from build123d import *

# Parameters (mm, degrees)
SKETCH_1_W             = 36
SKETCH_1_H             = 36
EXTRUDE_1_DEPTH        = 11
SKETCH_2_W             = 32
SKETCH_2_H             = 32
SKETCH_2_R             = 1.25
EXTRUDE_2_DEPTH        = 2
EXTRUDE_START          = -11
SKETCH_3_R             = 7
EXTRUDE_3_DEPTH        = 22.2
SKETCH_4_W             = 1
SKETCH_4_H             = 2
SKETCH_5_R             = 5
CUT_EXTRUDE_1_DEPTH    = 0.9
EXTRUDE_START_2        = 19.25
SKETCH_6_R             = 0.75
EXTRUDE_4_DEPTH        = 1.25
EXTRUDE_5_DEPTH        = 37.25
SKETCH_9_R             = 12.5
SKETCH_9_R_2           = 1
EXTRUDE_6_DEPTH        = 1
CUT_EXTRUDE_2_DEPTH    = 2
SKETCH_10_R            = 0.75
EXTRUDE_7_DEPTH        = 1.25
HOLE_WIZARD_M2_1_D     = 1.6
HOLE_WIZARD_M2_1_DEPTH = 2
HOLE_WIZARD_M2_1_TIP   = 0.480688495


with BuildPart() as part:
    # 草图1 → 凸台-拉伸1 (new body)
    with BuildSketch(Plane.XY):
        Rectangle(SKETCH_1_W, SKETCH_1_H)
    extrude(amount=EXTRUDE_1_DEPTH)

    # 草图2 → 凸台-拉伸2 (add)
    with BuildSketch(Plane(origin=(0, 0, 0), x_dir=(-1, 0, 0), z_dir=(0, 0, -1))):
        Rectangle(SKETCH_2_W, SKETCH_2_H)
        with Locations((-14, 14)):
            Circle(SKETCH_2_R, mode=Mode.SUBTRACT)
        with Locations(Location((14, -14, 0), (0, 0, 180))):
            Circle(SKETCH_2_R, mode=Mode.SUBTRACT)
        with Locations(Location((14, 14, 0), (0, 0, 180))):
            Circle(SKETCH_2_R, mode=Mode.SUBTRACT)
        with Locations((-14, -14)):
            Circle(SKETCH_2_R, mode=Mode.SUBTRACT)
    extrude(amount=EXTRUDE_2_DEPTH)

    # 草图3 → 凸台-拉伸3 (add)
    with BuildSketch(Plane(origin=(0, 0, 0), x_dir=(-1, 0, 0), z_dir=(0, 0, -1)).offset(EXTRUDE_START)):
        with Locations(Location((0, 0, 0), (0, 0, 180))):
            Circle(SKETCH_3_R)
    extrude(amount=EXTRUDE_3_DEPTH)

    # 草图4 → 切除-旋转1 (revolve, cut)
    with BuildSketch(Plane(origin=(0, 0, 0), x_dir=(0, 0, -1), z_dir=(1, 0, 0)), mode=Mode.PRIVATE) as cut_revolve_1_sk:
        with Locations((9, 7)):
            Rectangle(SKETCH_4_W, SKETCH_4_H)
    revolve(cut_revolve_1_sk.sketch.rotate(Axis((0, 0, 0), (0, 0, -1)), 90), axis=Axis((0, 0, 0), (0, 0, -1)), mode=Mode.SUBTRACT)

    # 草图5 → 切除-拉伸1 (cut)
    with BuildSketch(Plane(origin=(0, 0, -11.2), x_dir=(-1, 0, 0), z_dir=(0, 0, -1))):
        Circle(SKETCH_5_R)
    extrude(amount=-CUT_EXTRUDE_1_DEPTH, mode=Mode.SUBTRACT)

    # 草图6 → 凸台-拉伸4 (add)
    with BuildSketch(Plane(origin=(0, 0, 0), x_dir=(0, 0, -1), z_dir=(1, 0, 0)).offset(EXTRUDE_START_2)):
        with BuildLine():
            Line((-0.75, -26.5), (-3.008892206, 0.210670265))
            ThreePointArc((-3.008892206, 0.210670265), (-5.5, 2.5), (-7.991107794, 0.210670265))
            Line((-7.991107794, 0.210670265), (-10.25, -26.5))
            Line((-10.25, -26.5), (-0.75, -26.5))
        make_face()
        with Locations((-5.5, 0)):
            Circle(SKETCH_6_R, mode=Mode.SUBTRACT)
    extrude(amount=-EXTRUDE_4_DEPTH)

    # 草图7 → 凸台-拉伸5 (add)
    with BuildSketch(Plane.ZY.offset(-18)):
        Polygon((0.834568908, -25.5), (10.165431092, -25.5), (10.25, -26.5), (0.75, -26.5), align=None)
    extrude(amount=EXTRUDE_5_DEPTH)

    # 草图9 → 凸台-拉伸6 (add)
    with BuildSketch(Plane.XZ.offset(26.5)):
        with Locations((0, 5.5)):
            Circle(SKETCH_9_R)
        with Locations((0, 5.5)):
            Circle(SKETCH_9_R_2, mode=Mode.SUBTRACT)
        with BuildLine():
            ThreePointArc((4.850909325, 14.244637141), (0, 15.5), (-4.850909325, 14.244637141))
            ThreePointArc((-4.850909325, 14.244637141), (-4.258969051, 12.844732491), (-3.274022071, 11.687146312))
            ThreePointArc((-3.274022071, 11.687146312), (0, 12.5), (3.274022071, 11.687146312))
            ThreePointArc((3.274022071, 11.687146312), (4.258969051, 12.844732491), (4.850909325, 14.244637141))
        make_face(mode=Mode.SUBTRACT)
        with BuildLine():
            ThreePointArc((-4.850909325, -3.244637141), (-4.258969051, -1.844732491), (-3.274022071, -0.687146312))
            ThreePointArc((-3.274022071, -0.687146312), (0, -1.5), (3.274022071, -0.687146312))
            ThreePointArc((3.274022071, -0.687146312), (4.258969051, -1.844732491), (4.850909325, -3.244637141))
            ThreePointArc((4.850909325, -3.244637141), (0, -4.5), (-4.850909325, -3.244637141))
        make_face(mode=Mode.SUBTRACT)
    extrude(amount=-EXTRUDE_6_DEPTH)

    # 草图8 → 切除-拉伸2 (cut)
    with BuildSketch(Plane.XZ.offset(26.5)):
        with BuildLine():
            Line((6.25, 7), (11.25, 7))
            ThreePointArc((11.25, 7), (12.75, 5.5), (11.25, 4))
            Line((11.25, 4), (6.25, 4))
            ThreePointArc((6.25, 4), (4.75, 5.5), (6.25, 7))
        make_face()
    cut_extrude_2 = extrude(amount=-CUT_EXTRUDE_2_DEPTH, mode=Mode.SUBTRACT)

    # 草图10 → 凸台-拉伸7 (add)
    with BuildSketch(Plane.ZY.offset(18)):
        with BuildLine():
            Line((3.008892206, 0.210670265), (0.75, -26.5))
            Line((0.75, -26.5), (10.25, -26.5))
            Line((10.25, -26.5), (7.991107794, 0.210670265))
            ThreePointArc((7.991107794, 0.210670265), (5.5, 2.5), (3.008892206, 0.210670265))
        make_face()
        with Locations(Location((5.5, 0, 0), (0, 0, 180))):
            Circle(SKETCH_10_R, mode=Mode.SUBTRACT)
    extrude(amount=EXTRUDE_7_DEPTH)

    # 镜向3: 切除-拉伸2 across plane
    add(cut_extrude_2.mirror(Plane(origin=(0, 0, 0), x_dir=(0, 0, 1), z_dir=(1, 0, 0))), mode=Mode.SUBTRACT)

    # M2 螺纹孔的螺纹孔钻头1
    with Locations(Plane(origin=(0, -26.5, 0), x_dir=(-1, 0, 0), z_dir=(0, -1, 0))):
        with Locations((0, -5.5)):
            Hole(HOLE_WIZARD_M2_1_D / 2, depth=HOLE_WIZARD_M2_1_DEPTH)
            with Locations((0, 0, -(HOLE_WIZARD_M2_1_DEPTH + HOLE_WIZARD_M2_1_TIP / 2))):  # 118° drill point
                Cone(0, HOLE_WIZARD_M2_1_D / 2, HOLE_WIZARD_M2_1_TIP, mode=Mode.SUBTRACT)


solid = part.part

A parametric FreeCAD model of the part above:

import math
import FreeCAD as App
import Part
import Sketcher

V = App.Vector
Q = App.Units.Quantity


def add_polygon(sketch, points):
    """Adds a closed chain of lines whose ends are joined by coincident constraints."""
    first, n = sketch.GeometryCount, len(points)
    for a, b in zip(points, points[1:] + points[:1]):
        sketch.addGeometry(Part.LineSegment(App.Vector(*a, 0), App.Vector(*b, 0)), False)
    for i in range(n):
        sketch.addConstraint(Sketcher.Constraint("Coincident", first + i, 2, first + (i + 1) % n, 1))

doc = App.newDocument("Part")
body = doc.addObject("PartDesign::Body", "Body")

# Sketch on XY plane
sketch1 = body.newObject("Sketcher::SketchObject", "Sketch")
sketch1.AttachmentSupport = (doc.getObject("XY_Plane"), [""])
sketch1.MapMode = "FlatFace"
add_polygon(sketch1, [(-18, 18), (-18, -18), (18, -18), (18, 18)])  # lines 0-3
sketch1.addConstraint(Sketcher.Constraint("Vertical", 0))
sketch1.addConstraint(Sketcher.Constraint("Horizontal", 1))
sketch1.addConstraint(Sketcher.Constraint("Vertical", 2))
sketch1.addConstraint(Sketcher.Constraint("Horizontal", 3))
sketch1.addConstraint(Sketcher.Constraint("Symmetric", 0, 2, 2, 2, -1, 1))
sketch1.addConstraint(Sketcher.Constraint("Equal", 3, 0))
sketch1.addConstraint(Sketcher.Constraint("DistanceX", 1, 1, 1, 2, Q("36 mm")))
pad1 = body.newObject("PartDesign::Pad", "Pad")
pad1.Profile = sketch1
pad1.Length = 11

# Sketch on XY plane
sketch2 = body.newObject("Sketcher::SketchObject", "Sketch001")
sketch2.AttachmentSupport = (doc.getObject("XY_Plane"), [""])
sketch2.MapMode = "FlatFace"
add_polygon(sketch2, [(16, 16), (16, -16), (-16, -16), (-16, 16)])  # lines 0-3
sketch2.addGeometry(Part.Circle(V(14, -14, 0), V(0, 0, 1), 1.2), False)  # 4
sketch2.addGeometry(Part.Circle(V(-14, -14, 0), V(0, 0, 1), 1.2), False)  # 5
sketch2.addGeometry(Part.Circle(V(14, 14, 0), V(0, 0, 1), 1.2), False)  # 6
sketch2.addGeometry(Part.Circle(V(-14, 14, 0), V(0, 0, 1), 1.2), False)  # 7
sketch2.addConstraint(Sketcher.Constraint("Vertical", 0))
sketch2.addConstraint(Sketcher.Constraint("Horizontal", 1))
sketch2.addConstraint(Sketcher.Constraint("Vertical", 2))
sketch2.addConstraint(Sketcher.Constraint("Horizontal", 3))
sketch2.addConstraint(Sketcher.Constraint("Equal", 4, 5))
sketch2.addConstraint(Sketcher.Constraint("Equal", 5, 6))
sketch2.addConstraint(Sketcher.Constraint("Equal", 6, 7))
sketch2.addConstraint(Sketcher.Constraint("Symmetric", 5, 3, 6, 3, -1, 1))
sketch2.addConstraint(Sketcher.Constraint("Symmetric", 4, 3, 7, 3, -1, 1))
sketch2.addConstraint(Sketcher.Constraint("Symmetric", 0, 2, 2, 2, -1, 1))
sketch2.addConstraint(Sketcher.Constraint("Symmetric", 4, 3, 5, 3, -2))
sketch2.addConstraint(Sketcher.Constraint("Equal", 3, 0))
sketch2.addConstraint(Sketcher.Constraint("Diameter", 4, Q("2.5 mm")))
sketch2.addConstraint(Sketcher.Constraint("DistanceX", 1, 2, 1, 1, Q("32 mm")))
sketch2.addConstraint(Sketcher.Constraint("DistanceX", -1, 1, 4, 3, Q("14 mm")))
sketch2.addConstraint(Sketcher.Constraint("DistanceY", 4, 3, -1, 1, Q("14 mm")))
pad2 = body.newObject("PartDesign::Pad", "Pad001")
pad2.Profile = sketch2
pad2.Length = 2
pad2.Reversed = True

# Sketch on XY plane
sketch3 = body.newObject("Sketcher::SketchObject", "Sketch002")
sketch3.AttachmentSupport = (doc.getObject("XY_Plane"), [""])
sketch3.MapMode = "FlatFace"
sketch3.AttachmentOffset = App.Placement(V(0, 0, 11), App.Rotation())
sketch3.addGeometry(Part.Circle(V(0, 0, 0), V(0, 0, 1), 7), False)
sketch3.addConstraint(Sketcher.Constraint("Coincident", 0, 3, -1, 1))
sketch3.addConstraint(Sketcher.Constraint("Diameter", 0, Q("14 mm")))
pad3 = body.newObject("PartDesign::Pad", "Pad002")
pad3.Profile = sketch3
pad3.Length = 22.2
pad3.Reversed = True

# Sketch on YZ plane
sketch4 = body.newObject("Sketcher::SketchObject", "Sketch003")
sketch4.AttachmentSupport = (doc.getObject("YZ_Plane"), [""])
sketch4.MapMode = "FlatFace"
add_polygon(sketch4, [(8, -8.5), (6, -8.5), (6, -9.5), (8, -9.5)])  # lines 0-3
sketch4.addConstraint(Sketcher.Constraint("Horizontal", 0))
sketch4.addConstraint(Sketcher.Constraint("Vertical", 1))
sketch4.addConstraint(Sketcher.Constraint("Horizontal", 2))
sketch4.addConstraint(Sketcher.Constraint("Vertical", 3))
sketch4.addConstraint(Sketcher.Constraint("DistanceX", 0, 2, 0, 1, Q("2 mm")))
sketch4.addConstraint(Sketcher.Constraint("DistanceY", 1, 2, 1, 1, Q("1 mm")))
sketch4.addConstraint(Sketcher.Constraint("DistanceX", -1, 1, 0, 2, Q("6 mm")))
sketch4.addConstraint(Sketcher.Constraint("DistanceY", 0, 2, -1, 1, Q("8.5 mm")))
groove = body.newObject("PartDesign::Groove", "Groove")
groove.Profile = sketch4
groove.ReferenceAxis = (sketch4, ["V_Axis"])
groove.Angle = 360

# Sketch on XY plane
sketch5 = body.newObject("Sketcher::SketchObject", "Sketch004")
sketch5.AttachmentSupport = (doc.getObject("XY_Plane"), [""])
sketch5.MapMode = "FlatFace"
sketch5.AttachmentOffset = App.Placement(V(0, 0, -11.2), App.Rotation())
sketch5.addGeometry(Part.Circle(V(0, 0, 0), V(0, 0, 1), 5), False)
sketch5.addConstraint(Sketcher.Constraint("Coincident", 0, 3, -1, 1))
sketch5.addConstraint(Sketcher.Constraint("Diameter", 0, Q("10 mm")))
pocket1 = body.newObject("PartDesign::Pocket", "Pocket")
pocket1.Profile = sketch5
pocket1.Length = 0.9
pocket1.Reversed = True

# Sketch on YZ plane
sketch6 = body.newObject("Sketcher::SketchObject", "Sketch005")
sketch6.AttachmentSupport = (doc.getObject("YZ_Plane"), [""])
sketch6.MapMode = "FlatFace"
sketch6.AttachmentOffset = App.Placement(V(0, 0, 19.25), App.Rotation())
sketch6.addGeometry(Part.LineSegment(V(-26.5, 0.8, 0), V(0.2, 3, 0)), False)
sketch6.addGeometry(Part.ArcOfCircle(Part.Circle(V(0, 5.5, 0), V(0, 0, 1), 2.5), math.radians(-85), math.radians(85)), False)
sketch6.addGeometry(Part.LineSegment(V(0.2, 8, 0), V(-26.5, 10.2, 0)), False)
sketch6.addGeometry(Part.LineSegment(V(-26.5, 10.2, 0), V(-26.5, 0.8, 0)), False)
sketch6.addGeometry(Part.Circle(V(0, 5.5, 0), V(0, 0, 1), 0.8), False)
sketch6.addConstraint(Sketcher.Constraint("Tangent", 0, 2, 1, 1))
sketch6.addConstraint(Sketcher.Constraint("Tangent", 1, 2, 2, 1))
sketch6.addConstraint(Sketcher.Constraint("Coincident", 2, 2, 3, 1))
sketch6.addConstraint(Sketcher.Constraint("Coincident", 3, 2, 0, 1))
sketch6.addConstraint(Sketcher.Constraint("Vertical", 3))
sketch6.addConstraint(Sketcher.Constraint("Coincident", 4, 3, 1, 3))
sketch6.addConstraint(Sketcher.Constraint("PointOnObject", 1, 3, -2))
sketch6.addConstraint(Sketcher.Constraint("Vertical", 0, 2, 1, 2))
sketch6.addConstraint(Sketcher.Constraint("Diameter", 4, Q("1.5 mm")))
sketch6.addConstraint(Sketcher.Constraint("Radius", 1, Q("2.5 mm")))
sketch6.addConstraint(Sketcher.Constraint("DistanceY", 3, 2, 3, 1, Q("9.5 mm")))
sketch6.addConstraint(Sketcher.Constraint("DistanceY", -1, 1, 1, 3, Q("5.5 mm")))
sketch6.addConstraint(Sketcher.Constraint("DistanceX", 2, 2, -1, 1, Q("26.5 mm")))
pad4 = body.newObject("PartDesign::Pad", "Pad003")
pad4.Profile = sketch6
pad4.Length = 1.25
pad4.Reversed = True

# Sketch on YZ plane
sketch7 = body.newObject("Sketcher::SketchObject", "Sketch006")
sketch7.AttachmentSupport = (doc.getObject("YZ_Plane"), [""])
sketch7.MapMode = "FlatFace"
sketch7.AttachmentOffset = App.Placement(V(0, 0, 18), App.Rotation())
add_polygon(sketch7, [(-25.5, 10.165431), (-25.5, 0.834569), (-26.5, 0.75), (-26.5, 10.25)])  # lines 0-3
sketch7.addConstraint(Sketcher.Constraint("Vertical", 0))
sketch7.addConstraint(Sketcher.Constraint("Vertical", 2))
sketch7.addConstraint(Sketcher.Constraint("Equal", 1, 3))
sketch7.addConstraint(Sketcher.Constraint("DistanceY", 2, 1, 2, 2, Q("9.5 mm")))
sketch7.addConstraint(Sketcher.Constraint("DistanceX", 1, 2, 0, 2, Q("1 mm")))
sketch7.addConstraint(Sketcher.Constraint("DistanceX", 0, 2, -1, 1, Q("25.5 mm")))
sketch7.addConstraint(Sketcher.Constraint("DistanceY", -1, 1, 1, 2, Q("0.75 mm")))
sketch7.addConstraint(Sketcher.Constraint("Distance", 1, Q("1.00357 mm")))
pad5 = body.newObject("PartDesign::Pad", "Pad004")
pad5.Profile = sketch7
pad5.Length = 37.25
pad5.Reversed = True

# Sketch on XZ plane
sketch8 = body.newObject("Sketcher::SketchObject", "Sketch007")
sketch8.AttachmentSupport = (doc.getObject("XZ_Plane"), [""])
sketch8.MapMode = "FlatFace"
sketch8.AttachmentOffset = App.Placement(V(0, 0, 26.5), App.Rotation())
sketch8.addGeometry(Part.Circle(V(0, 5.5, 0), V(0, 0, 1), 12.5), False)
sketch8.addGeometry(Part.ArcOfCircle(Part.Circle(V(0, 5.5, 0), V(0, 0, 1), 10), math.radians(-119), math.radians(-61)), False)
sketch8.addGeometry(Part.ArcOfCircle(Part.Circle(V(0, -4.5, 0), V(0, 0, 1), 5), math.radians(131), math.radians(166)), False)
sketch8.addGeometry(Part.ArcOfCircle(Part.Circle(V(0, 5.5, 0), V(0, 0, 1), 7), math.radians(-118), math.radians(-62)), False)
sketch8.addGeometry(Part.ArcOfCircle(Part.Circle(V(0, -4.5, 0), V(0, 0, 1), 5), math.radians(14), math.radians(49)), False)
sketch8.addGeometry(Part.Circle(V(0, 5.5, 0), V(0, 0, 1), 1), False)
sketch8.addGeometry(Part.ArcOfCircle(Part.Circle(V(0, 5.5, 0), V(0, 0, 1), 10), math.radians(61), math.radians(119)), False)
sketch8.addGeometry(Part.ArcOfCircle(Part.Circle(V(0, 15.5, 0), V(0, 0, 1), 5), math.radians(-49), math.radians(-14)), False)
sketch8.addGeometry(Part.ArcOfCircle(Part.Circle(V(0, 5.5, 0), V(0, 0, 1), 7), math.radians(62), math.radians(118)), False)
sketch8.addGeometry(Part.ArcOfCircle(Part.Circle(V(0, 15.5, 0), V(0, 0, 1), 5), math.radians(-166), math.radians(-131)), False)
sketch8.addConstraint(Sketcher.Constraint("Coincident", 1, 1, 2, 2))
sketch8.addConstraint(Sketcher.Constraint("Coincident", 2, 1, 3, 1))
sketch8.addConstraint(Sketcher.Constraint("Coincident", 3, 2, 4, 2))
sketch8.addConstraint(Sketcher.Constraint("Coincident", 4, 1, 1, 2))
sketch8.addConstraint(Sketcher.Constraint("Coincident", 6, 1, 7, 2))
sketch8.addConstraint(Sketcher.Constraint("Coincident", 7, 1, 8, 1))
sketch8.addConstraint(Sketcher.Constraint("Coincident", 8, 2, 9, 2))
sketch8.addConstraint(Sketcher.Constraint("Coincident", 9, 1, 6, 2))
sketch8.addConstraint(Sketcher.Constraint("Coincident", 1, 3, 0, 3))
sketch8.addConstraint(Sketcher.Constraint("Coincident", 3, 3, 0, 3))
sketch8.addConstraint(Sketcher.Constraint("Coincident", 4, 3, 2, 3))
sketch8.addConstraint(Sketcher.Constraint("Coincident", 5, 3, 0, 3))
sketch8.addConstraint(Sketcher.Constraint("Coincident", 6, 3, 0, 3))
sketch8.addConstraint(Sketcher.Constraint("Coincident", 8, 3, 0, 3))
sketch8.addConstraint(Sketcher.Constraint("Coincident", 9, 3, 7, 3))
sketch8.addConstraint(Sketcher.Constraint("Equal", 2, 4))
sketch8.addConstraint(Sketcher.Constraint("Equal", 1, 6))
sketch8.addConstraint(Sketcher.Constraint("Equal", 4, 7))
sketch8.addConstraint(Sketcher.Constraint("Equal", 3, 8))
sketch8.addConstraint(Sketcher.Constraint("Equal", 7, 9))
sketch8.addConstraint(Sketcher.Constraint("Symmetric", 2, 1, 3, 2, -2))
sketch8.addConstraint(Sketcher.Constraint("PointOnObject", 7, 3, -2))
sketch8.addConstraint(Sketcher.Constraint("Vertical", 4, 1, 6, 1))
sketch8.addConstraint(Sketcher.Constraint("Diameter", 0, Q("25 mm")))
sketch8.addConstraint(Sketcher.Constraint("Diameter", 5, Q("2 mm")))
sketch8.addConstraint(Sketcher.Constraint("Radius", 1, Q("10 mm")))
sketch8.addConstraint(Sketcher.Constraint("Radius", 3, Q("7 mm")))
sketch8.addConstraint(Sketcher.Constraint("DistanceY", -1, 1, 0, 3, Q("5.5 mm")))
sketch8.addConstraint(Sketcher.Constraint("Radius", 2, Q("5.003456 mm")))
sketch8.addConstraint(Sketcher.Constraint("DistanceY", 2, 3, -1, 1, Q("4.47071 mm")))
pad6 = body.newObject("PartDesign::Pad", "Pad005")
pad6.Profile = sketch8
pad6.Length = 1
pad6.Reversed = True

# Sketch on XZ plane
sketch9 = body.newObject("Sketcher::SketchObject", "Sketch008")
sketch9.AttachmentSupport = (doc.getObject("XZ_Plane"), [""])
sketch9.MapMode = "FlatFace"
sketch9.AttachmentOffset = App.Placement(V(0, 0, 26.5), App.Rotation())
sketch9.addGeometry(Part.LineSegment(V(11.2, 7, 0), V(6.2, 7, 0)), False)
sketch9.addGeometry(Part.ArcOfCircle(Part.Circle(V(6.2, 5.5, 0), V(0, 0, 1), 1.5), math.radians(90), math.radians(270)), False)
sketch9.addGeometry(Part.LineSegment(V(6.2, 4, 0), V(11.2, 4, 0)), False)
sketch9.addGeometry(Part.ArcOfCircle(Part.Circle(V(11.2, 5.5, 0), V(0, 0, 1), 1.5), math.radians(-90), math.radians(90)), False)
sketch9.addConstraint(Sketcher.Constraint("Tangent", 0, 2, 1, 1))
sketch9.addConstraint(Sketcher.Constraint("Tangent", 1, 2, 2, 1))
sketch9.addConstraint(Sketcher.Constraint("Tangent", 2, 2, 3, 1))
sketch9.addConstraint(Sketcher.Constraint("Tangent", 3, 2, 0, 1))
sketch9.addConstraint(Sketcher.Constraint("Horizontal", 0))
sketch9.addConstraint(Sketcher.Constraint("Horizontal", 2))
sketch9.addConstraint(Sketcher.Constraint("Radius", 1, Q("1.5 mm")))
sketch9.addConstraint(Sketcher.Constraint("DistanceX", 0, 2, 0, 1, Q("5 mm")))
sketch9.addConstraint(Sketcher.Constraint("DistanceY", -1, 1, 0, 2, Q("7 mm")))
sketch9.addConstraint(Sketcher.Constraint("DistanceX", -1, 1, 1, 3, Q("6.25 mm")))
pocket2 = body.newObject("PartDesign::Pocket", "Pocket001")
pocket2.Profile = sketch9
pocket2.Length = 2

# Sketch on YZ plane
sketch10 = body.newObject("Sketcher::SketchObject", "Sketch009")
sketch10.AttachmentSupport = (doc.getObject("YZ_Plane"), [""])
sketch10.MapMode = "FlatFace"
sketch10.AttachmentOffset = App.Placement(V(0, 0, -18), App.Rotation())
sketch10.addGeometry(Part.LineSegment(V(0.2, 3, 0), V(-26.5, 0.8, 0)), False)
sketch10.addGeometry(Part.LineSegment(V(-26.5, 0.8, 0), V(-26.5, 10.2, 0)), False)
sketch10.addGeometry(Part.LineSegment(V(-26.5, 10.2, 0), V(0.2, 8, 0)), False)
sketch10.addGeometry(Part.ArcOfCircle(Part.Circle(V(0, 5.5, 0), V(0, 0, 1), 2.5), math.radians(-85), math.radians(85)), False)
sketch10.addGeometry(Part.Circle(V(0, 5.5, 0), V(0, 0, 1), 0.8), False)
sketch10.addConstraint(Sketcher.Constraint("Coincident", 0, 2, 1, 1))
sketch10.addConstraint(Sketcher.Constraint("Coincident", 1, 2, 2, 1))
sketch10.addConstraint(Sketcher.Constraint("Tangent", 2, 2, 3, 2))
sketch10.addConstraint(Sketcher.Constraint("Tangent", 3, 1, 0, 1))
sketch10.addConstraint(Sketcher.Constraint("Vertical", 1))
sketch10.addConstraint(Sketcher.Constraint("Coincident", 4, 3, 3, 3))
sketch10.addConstraint(Sketcher.Constraint("PointOnObject", 3, 3, -2))
sketch10.addConstraint(Sketcher.Constraint("Vertical", 2, 2, 3, 1))
sketch10.addConstraint(Sketcher.Constraint("Diameter", 4, Q("1.5 mm")))
sketch10.addConstraint(Sketcher.Constraint("Radius", 3, Q("2.5 mm")))
sketch10.addConstraint(Sketcher.Constraint("DistanceY", 1, 1, 1, 2, Q("9.5 mm")))
sketch10.addConstraint(Sketcher.Constraint("DistanceY", -1, 1, 3, 3, Q("5.5 mm")))
sketch10.addConstraint(Sketcher.Constraint("DistanceX", 0, 2, -1, 1, Q("26.5 mm")))
pad7 = body.newObject("PartDesign::Pad", "Pad006")
pad7.Profile = sketch10
pad7.Length = 1.25
pad7.Reversed = True
doc.recompute()

mirrored = body.newObject("PartDesign::Mirrored", "Mirrored")
mirrored.Originals = [pocket2]
mirrored.MirrorPlane = (doc.getObject("YZ_Plane"), [""])
body.Tip = mirrored

# Sketch on XZ plane
sketch11 = body.newObject("Sketcher::SketchObject", "Sketch010")
sketch11.AttachmentSupport = (doc.getObject("XZ_Plane"), [""])
sketch11.MapMode = "FlatFace"
sketch11.AttachmentOffset = App.Placement(V(0, 0, 26.5), App.Rotation())
sketch11.addGeometry(Part.Circle(V(0, 5.5, 0), V(0, 0, 1), 0.8), False)
sketch11.addConstraint(Sketcher.Constraint("PointOnObject", 0, 3, -2))
sketch11.addConstraint(Sketcher.Constraint("Diameter", 0, Q("1.6 mm")))
sketch11.addConstraint(Sketcher.Constraint("DistanceY", -1, 1, 0, 3, Q("5.5 mm")))
doc.recompute()
hole = body.newObject("PartDesign::Hole", "Hole")
hole.Profile = sketch11
hole.ThreadType = "None"
hole.Diameter = 1.6
hole.DepthType = "Dimension"
hole.Depth = 2
hole.DrillPoint = "Angled"
hole.DrillPointAngle = 118

doc.recompute()
